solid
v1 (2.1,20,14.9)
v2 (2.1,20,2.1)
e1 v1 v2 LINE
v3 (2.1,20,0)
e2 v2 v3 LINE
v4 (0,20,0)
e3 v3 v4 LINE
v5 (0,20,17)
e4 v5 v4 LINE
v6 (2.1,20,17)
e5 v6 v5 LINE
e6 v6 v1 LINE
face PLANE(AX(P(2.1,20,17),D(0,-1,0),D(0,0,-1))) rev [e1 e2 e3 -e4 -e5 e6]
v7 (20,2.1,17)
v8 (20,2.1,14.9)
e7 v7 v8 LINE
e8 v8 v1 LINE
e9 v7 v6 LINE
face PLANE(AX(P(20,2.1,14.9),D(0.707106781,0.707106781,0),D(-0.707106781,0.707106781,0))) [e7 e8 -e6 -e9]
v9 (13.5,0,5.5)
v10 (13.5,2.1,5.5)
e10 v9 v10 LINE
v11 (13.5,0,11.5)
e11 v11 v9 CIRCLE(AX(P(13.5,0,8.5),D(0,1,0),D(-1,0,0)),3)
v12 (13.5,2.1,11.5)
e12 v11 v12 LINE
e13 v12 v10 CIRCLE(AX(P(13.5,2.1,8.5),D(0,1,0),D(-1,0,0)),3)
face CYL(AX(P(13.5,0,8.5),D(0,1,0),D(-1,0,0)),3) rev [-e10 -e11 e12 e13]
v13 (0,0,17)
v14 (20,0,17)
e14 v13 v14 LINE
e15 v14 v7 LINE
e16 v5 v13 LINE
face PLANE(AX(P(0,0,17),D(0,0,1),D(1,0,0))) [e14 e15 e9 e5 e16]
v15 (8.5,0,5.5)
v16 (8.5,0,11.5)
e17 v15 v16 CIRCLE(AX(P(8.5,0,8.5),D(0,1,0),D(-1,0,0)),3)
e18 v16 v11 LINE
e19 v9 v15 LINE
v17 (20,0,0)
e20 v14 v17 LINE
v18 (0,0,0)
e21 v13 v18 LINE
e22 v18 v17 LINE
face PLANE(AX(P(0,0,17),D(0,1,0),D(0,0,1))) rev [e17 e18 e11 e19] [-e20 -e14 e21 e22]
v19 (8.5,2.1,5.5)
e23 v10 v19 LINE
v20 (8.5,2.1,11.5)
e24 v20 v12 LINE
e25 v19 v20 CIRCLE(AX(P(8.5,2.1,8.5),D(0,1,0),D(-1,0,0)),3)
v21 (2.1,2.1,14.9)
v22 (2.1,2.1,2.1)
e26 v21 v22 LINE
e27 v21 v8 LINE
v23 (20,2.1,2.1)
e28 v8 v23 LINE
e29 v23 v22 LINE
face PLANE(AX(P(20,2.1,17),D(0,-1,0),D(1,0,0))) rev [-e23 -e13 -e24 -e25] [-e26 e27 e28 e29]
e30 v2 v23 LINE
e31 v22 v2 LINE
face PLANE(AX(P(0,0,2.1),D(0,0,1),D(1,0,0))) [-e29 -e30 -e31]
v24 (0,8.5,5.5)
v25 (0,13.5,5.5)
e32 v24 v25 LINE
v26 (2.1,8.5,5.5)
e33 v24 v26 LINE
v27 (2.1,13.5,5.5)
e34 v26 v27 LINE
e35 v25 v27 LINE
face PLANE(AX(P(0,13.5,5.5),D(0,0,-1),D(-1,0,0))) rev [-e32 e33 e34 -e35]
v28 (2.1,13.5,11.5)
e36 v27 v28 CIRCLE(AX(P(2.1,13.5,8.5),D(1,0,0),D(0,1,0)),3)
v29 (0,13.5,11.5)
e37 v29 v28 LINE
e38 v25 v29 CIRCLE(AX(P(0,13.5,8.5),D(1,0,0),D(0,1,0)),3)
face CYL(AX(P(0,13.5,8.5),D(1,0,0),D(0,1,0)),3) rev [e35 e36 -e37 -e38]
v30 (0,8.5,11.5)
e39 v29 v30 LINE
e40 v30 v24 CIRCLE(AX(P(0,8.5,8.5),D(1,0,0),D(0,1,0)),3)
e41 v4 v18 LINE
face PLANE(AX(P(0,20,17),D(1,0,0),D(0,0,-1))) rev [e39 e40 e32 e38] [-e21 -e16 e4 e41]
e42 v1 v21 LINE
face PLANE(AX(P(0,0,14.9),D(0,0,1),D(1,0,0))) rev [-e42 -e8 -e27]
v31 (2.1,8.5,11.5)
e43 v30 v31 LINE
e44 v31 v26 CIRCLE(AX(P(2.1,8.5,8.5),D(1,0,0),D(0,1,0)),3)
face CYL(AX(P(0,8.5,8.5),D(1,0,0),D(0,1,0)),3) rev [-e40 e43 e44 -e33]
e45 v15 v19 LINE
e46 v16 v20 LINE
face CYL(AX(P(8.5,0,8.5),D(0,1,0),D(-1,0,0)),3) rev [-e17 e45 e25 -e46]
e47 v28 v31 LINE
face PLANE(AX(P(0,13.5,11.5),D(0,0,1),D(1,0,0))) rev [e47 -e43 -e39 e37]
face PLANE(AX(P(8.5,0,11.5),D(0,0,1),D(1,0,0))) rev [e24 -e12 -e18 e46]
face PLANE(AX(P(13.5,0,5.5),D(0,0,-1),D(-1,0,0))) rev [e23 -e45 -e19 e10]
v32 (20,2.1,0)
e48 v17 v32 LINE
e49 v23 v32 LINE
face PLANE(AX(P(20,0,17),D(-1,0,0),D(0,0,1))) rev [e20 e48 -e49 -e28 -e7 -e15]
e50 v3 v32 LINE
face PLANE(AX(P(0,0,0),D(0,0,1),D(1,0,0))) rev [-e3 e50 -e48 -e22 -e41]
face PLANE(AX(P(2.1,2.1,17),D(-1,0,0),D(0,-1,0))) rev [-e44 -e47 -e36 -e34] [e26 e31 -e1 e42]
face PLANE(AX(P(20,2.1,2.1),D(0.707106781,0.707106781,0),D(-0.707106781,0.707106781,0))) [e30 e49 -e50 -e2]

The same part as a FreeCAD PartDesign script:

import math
import FreeCAD as App
import Part
import Sketcher
from FreeCAD import Vector
Q = App.Units.Quantity

doc = App.newDocument("Part")
body = doc.addObject("PartDesign::Body", "Body")

sketch1 = body.newObject("Sketcher::SketchObject", "Sketch")
sketch1.AttachmentSupport = (doc.getObject("XY_Plane"), [""])
sketch1.MapMode = "FlatFace"
sketch1.addGeometry([
    Part.LineSegment(Vector(0, 0, 0), Vector(20, 0, 0)),
    Part.LineSegment(Vector(20, 0, 0), Vector(20, 2.1, 0)),
    Part.LineSegment(Vector(20, 2.1, 0), Vector(2.1, 2.1, 0)),
    Part.LineSegment(Vector(2.1, 2.1, 0), Vector(2.1, 20, 0)),
    Part.LineSegment(Vector(2.1, 20, 0), Vector(0, 20, 0)),
    Part.LineSegment(Vector(0, 20, 0), Vector(0, 0, 0)),
], False)
sketch1.addConstraint([
    Sketcher.Constraint("Coincident", 0, 2, 1, 1),
    Sketcher.Constraint("Coincident", 1, 2, 2, 1),
    Sketcher.Constraint("Coincident", 2, 2, 3, 1),
    Sketcher.Constraint("Coincident", 3, 2, 4, 1),
    Sketcher.Constraint("Coincident", 4, 2, 5, 1),
    Sketcher.Constraint("Coincident", 5, 2, 0, 1),
    Sketcher.Constraint("Horizontal", 0),
    Sketcher.Constraint("Vertical", 1),
    Sketcher.Constraint("Horizontal", 2),
    Sketcher.Constraint("Vertical", 3),
    Sketcher.Constraint("Horizontal", 4),
    Sketcher.Constraint("Vertical", 5),
    Sketcher.Constraint("Coincident", 5, 2, -1, 1),
    Sketcher.Constraint("Equal", 4, 1),
    Sketcher.Constraint("Equal", 2, 3),
    Sketcher.Constraint("DistanceX", 0, 1, 0, 2, Q("20 mm")),
    Sketcher.Constraint("DistanceX", 2, 2, 2, 1, Q("17.9 mm")),
])
pad1 = body.newObject("PartDesign::Pad", "Pad")
pad1.Profile = sketch1
pad1.Length = 17

sketch2 = body.newObject("Sketcher::SketchObject", "Sketch001")
sketch2.AttachmentSupport = (doc.getObject("XY_Plane"), [""])
sketch2.MapMode = "FlatFace"
sketch2.addGeometry([
    Part.LineSegment(Vector(2, 2, 0), Vector(2, 20, 0)),
    Part.LineSegment(Vector(2, 20, 0), Vector(20, 2, 0)),
    Part.LineSegment(Vector(20, 2, 0), Vector(2, 2, 0)),
], False)
sketch2.addConstraint([
    Sketcher.Constraint("Coincident", 0, 2, 1, 1),
    Sketcher.Constraint("Coincident", 1, 2, 2, 1),
    Sketcher.Constraint("Coincident", 2, 2, 0, 1),
    Sketcher.Constraint("Vertical", 0),
    Sketcher.Constraint("Horizontal", 2),
    Sketcher.Constraint("Equal", 2, 0),
    Sketcher.Constraint("DistanceX", 2, 2, 2, 1, Q("17.9 mm")),
    Sketcher.Constraint("DistanceY", -1, 1, 0, 2, Q("20 mm")),
    Sketcher.Constraint("DistanceX", -1, 1, 1, 2, Q("20 mm")),
])
pad2 = body.newObject("PartDesign::Pad", "Pad001")
pad2.Profile = sketch2
pad2.Length = 2.1

sketch3 = body.newObject("Sketcher::SketchObject", "Sketch002")
sketch3.AttachmentSupport = (doc.getObject("XY_Plane"), [""])
sketch3.MapMode = "FlatFace"
sketch3.AttachmentOffset = App.Placement(Vector(0, 0, 17), App.Rotation())
sketch3.addGeometry([
    Part.LineSegment(Vector(2, 20, 0), Vector(2, 2, 0)),
    Part.LineSegment(Vector(2, 2, 0), Vector(20, 2, 0)),
    Part.LineSegment(Vector(20, 2, 0), Vector(2, 20, 0)),
], False)
sketch3.addConstraint([
    Sketcher.Constraint("Coincident", 0, 2, 1, 1),
    Sketcher.Constraint("Coincident", 1, 2, 2, 1),
    Sketcher.Constraint("Coincident", 2, 2, 0, 1),
    Sketcher.Constraint("Vertical", 0),
    Sketcher.Constraint("Horizontal", 1),
    Sketcher.Constraint("Equal", 1, 0),
    Sketcher.Constraint("DistanceX", 1, 1, 1, 2, Q("17.9 mm")),
    Sketcher.Constraint("DistanceX", -1, 1, 1, 2, Q("20 mm")),
    Sketcher.Constraint("DistanceY", -1, 1, 2, 2, Q("20 mm")),
])
pad3 = body.newObject("PartDesign::Pad", "Pad002")
pad3.Profile = sketch3
pad3.Length = 2.1
pad3.Reversed = True

sketch4 = body.newObject("Sketcher::SketchObject", "Sketch003")
sketch4.AttachmentSupport = (doc.getObject("YZ_Plane"), [""])
sketch4.MapMode = "FlatFace"
sketch4.AttachmentOffset = App.Placement(Vector(0, 0, 2.1), App.Rotation())
sketch4.addGeometry([
    Part.LineSegment(Vector(13.5, 11.5, 0), Vector(8.5, 11.5, 0)),
    Part.ArcOfCircle(Part.Circle(Vector(8.5, 8.5, 0), Vector(0, 0, 1), 3), math.radians(90), math.radians(270)),
    Part.LineSegment(Vector(8.5, 5.5, 0), Vector(13.5, 5.5, 0)),
    Part.ArcOfCircle(Part.Circle(Vector(13.5, 8.5, 0), Vector(0, 0, 1), 3), math.radians(-90), math.radians(90)),
], False)
sketch4.addConstraint([
    Sketcher.Constraint("Tangent", 0, 2, 1, 1),
    Sketcher.Constraint("Tangent", 1, 2, 2, 1),
    Sketcher.Constraint("Tangent", 2, 2, 3, 1),
    Sketcher.Constraint("Tangent", 3, 2, 0, 1),
    Sketcher.Constraint("Horizontal", 0),
    Sketcher.Constraint("Horizontal", 2),
    Sketcher.Constraint("Radius", 1, Q("3 mm")),
    Sketcher.Constraint("DistanceX", 0, 2, 0, 1, Q("5 mm")),
    Sketcher.Constraint("DistanceX", -1, 1, 1, 3, Q("8.5 mm")),
    Sketcher.Constraint("DistanceY", -1, 1, 1, 3, Q("8.5 mm")),
])
pocket1 = body.newObject("PartDesign::Pocket", "Pocket")
pocket1.Profile = sketch4
pocket1.Type = "ThroughAll"

sketch5 = body.newObject("Sketcher::SketchObject", "Sketch004")
sketch5.AttachmentSupport = (doc.getObject("XZ_Plane"), [""])
sketch5.MapMode = "FlatFace"
sketch5.AttachmentOffset = App.Placement(Vector(0, 0, -2.1), App.Rotation())
sketch5.addGeometry([
    Part.LineSegment(Vector(8.5, 11.5, 0), Vector(13.5, 11.5, 0)),
    Part.ArcOfCircle(Part.Circle(Vector(13.5, 8.5, 0), Vector(0, 0, 1), 3), math.radians(-90), math.radians(90)),
    Part.LineSegment(Vector(13.5, 5.5, 0), Vector(8.5, 5.5, 0)),
    Part.ArcOfCircle(Part.Circle(Vector(8.5, 8.5, 0), Vector(0, 0, 1), 3), math.radians(90), math.radians(270)),
], False)
sketch5.addConstraint([
    Sketcher.Constraint("Tangent", 0, 2, 1, 2),
    Sketcher.Constraint("Tangent", 1, 1, 2, 1),
    Sketcher.Constraint("Tangent", 2, 2, 3, 2),
    Sketcher.Constraint("Tangent", 3, 1, 0, 1),
    Sketcher.Constraint("Horizontal", 0),
    Sketcher.Constraint("Horizontal", 2),
    Sketcher.Constraint("Radius", 1, Q("3 mm")),
    Sketcher.Constraint("DistanceX", 0, 1, 0, 2, Q("5 mm")),
    Sketcher.Constraint("DistanceX", -1, 1, 1, 3, Q("13.5 mm")),
    Sketcher.Constraint("DistanceY", -1, 1, 1, 3, Q("8.5 mm")),
])
pocket2 = body.newObject("PartDesign::Pocket", "Pocket001")
pocket2.Profile = sketch5
pocket2.Type = "ThroughAll"
pocket2.Reversed = True

doc.recompute()
